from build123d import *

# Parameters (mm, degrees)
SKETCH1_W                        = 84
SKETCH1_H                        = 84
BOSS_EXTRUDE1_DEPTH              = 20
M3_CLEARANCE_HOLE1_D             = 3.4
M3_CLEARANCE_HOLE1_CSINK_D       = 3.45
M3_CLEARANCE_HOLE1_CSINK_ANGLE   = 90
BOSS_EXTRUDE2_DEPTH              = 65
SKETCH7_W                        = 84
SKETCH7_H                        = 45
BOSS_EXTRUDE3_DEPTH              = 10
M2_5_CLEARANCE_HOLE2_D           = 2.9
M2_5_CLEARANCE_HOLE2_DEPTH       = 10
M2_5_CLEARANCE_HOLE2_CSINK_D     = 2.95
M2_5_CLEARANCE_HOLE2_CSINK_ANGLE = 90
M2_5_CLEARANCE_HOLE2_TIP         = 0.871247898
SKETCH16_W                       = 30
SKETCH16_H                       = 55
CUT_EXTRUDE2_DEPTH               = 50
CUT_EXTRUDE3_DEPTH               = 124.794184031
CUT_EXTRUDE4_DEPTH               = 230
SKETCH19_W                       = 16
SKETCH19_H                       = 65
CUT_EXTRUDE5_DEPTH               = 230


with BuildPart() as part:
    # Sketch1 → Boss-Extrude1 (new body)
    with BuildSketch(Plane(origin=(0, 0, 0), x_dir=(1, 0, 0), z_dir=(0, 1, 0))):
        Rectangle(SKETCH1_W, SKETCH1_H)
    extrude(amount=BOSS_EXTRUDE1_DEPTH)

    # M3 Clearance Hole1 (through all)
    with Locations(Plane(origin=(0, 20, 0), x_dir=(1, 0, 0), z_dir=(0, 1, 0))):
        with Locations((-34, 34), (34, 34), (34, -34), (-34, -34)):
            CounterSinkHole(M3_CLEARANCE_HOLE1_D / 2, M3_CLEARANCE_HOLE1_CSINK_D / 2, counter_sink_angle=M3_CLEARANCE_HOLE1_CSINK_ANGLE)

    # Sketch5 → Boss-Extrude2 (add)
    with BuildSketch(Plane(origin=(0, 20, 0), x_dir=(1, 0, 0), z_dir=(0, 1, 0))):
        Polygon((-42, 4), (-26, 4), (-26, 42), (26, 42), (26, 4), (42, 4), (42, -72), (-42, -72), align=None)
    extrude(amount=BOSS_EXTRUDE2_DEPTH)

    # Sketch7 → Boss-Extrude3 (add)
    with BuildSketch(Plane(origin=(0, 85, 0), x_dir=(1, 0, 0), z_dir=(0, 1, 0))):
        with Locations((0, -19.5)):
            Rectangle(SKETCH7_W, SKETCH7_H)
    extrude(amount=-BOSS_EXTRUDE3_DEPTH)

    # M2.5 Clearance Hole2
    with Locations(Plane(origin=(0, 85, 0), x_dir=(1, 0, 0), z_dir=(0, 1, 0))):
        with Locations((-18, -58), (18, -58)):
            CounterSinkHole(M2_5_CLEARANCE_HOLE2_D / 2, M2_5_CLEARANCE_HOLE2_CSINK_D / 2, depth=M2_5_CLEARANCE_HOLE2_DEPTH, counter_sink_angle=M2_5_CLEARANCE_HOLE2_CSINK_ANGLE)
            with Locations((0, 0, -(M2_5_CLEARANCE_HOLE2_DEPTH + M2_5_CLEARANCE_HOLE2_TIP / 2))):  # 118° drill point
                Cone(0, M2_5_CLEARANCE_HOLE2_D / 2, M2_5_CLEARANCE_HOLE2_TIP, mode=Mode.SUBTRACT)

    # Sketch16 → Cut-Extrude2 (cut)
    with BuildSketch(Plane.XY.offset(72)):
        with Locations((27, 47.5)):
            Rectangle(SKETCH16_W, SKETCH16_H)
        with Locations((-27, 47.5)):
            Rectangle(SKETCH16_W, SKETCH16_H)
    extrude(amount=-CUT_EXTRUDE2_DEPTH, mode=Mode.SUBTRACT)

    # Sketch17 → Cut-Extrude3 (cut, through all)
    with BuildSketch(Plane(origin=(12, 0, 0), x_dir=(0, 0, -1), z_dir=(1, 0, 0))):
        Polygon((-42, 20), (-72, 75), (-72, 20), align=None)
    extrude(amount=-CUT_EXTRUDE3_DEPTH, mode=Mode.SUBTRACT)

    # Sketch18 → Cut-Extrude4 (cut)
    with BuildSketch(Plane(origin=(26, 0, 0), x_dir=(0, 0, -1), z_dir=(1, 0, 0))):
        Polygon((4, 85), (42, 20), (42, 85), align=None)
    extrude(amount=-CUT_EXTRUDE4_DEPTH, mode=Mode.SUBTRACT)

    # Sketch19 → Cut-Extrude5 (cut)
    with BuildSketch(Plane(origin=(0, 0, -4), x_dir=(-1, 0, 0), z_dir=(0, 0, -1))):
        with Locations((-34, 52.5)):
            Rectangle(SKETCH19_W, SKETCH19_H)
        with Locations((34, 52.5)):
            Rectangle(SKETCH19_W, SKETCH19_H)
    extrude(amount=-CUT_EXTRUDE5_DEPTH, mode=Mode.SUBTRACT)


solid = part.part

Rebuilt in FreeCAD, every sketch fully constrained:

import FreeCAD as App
import Part
import Sketcher

V = App.Vector


def add_polygon(sketch, points):
    """Adds a closed chain of lines whose ends are joined by coincident constraints."""
    first, n = sketch.GeometryCount, len(points)
    for a, b in zip(points, points[1:] + points[:1]):
        sketch.addGeometry(Part.LineSegment(App.Vector(*a, 0), App.Vector(*b, 0)), False)
    for i in range(n):
        sketch.addConstraint(Sketcher.Constraint("Coincident", first + i, 2, first + (i + 1) % n, 1))

doc = App.newDocument("Part")
body = doc.addObject("PartDesign::Body", "Body")

# Sketch on XZ plane
sketch1 = body.newObject("Sketcher::SketchObject", "Sketch")
sketch1.AttachmentSupport = (doc.getObject("XZ_Plane"), [""])
sketch1.MapMode = "FlatFace"
add_polygon(sketch1, [(-42, -42), (-42, 42), (42, 42), (42, -42)])  # lines 0-3
sketch1.addConstraint([
    Sketcher.Constraint("Vertical", 0),
    Sketcher.Constraint("Horizontal", 1),
    Sketcher.Constraint("Vertical", 2),
    Sketcher.Constraint("Horizontal", 3),
    Sketcher.Constraint("Symmetric", 0, 2, 2, 2, -1, 1),
    Sketcher.Constraint("Equal", 3, 0),
    Sketcher.Constraint("DistanceX", 1, 1, 1, 2, 84.0),
])
pad1 = body.newObject("PartDesign::Pad", "Pad")
pad1.Profile = sketch1
pad1.Length = 20
pad1.Reversed = True

# Sketch on XZ plane
sketch2 = body.newObject("Sketcher::SketchObject", "Sketch001")
sketch2.AttachmentSupport = (doc.getObject("XZ_Plane"), [""])
sketch2.MapMode = "FlatFace"
sketch2.AttachmentOffset = App.Placement(V(0, 0, -20), App.Rotation())
sketch2.addGeometry([
    Part.Circle(V(-34, -34, 0), V(0, 0, 1), 1.7),
    Part.Circle(V(34, -34, 0), V(0, 0, 1), 1.7),
    Part.Circle(V(34, 34, 0), V(0, 0, 1), 1.7),
    Part.Circle(V(-34, 34, 0), V(0, 0, 1), 1.7),
], False)
sketch2.addConstraint([
    Sketcher.Constraint("Equal", 0, 1),
    Sketcher.Constraint("Equal", 1, 2),
    Sketcher.Constraint("Equal", 2, 3),
    Sketcher.Constraint("Symmetric", 0, 3, 2, 3, -1, 1),
    Sketcher.Constraint("Symmetric", 1, 3, 3, 3, -1, 1),
    Sketcher.Constraint("Symmetric", 0, 3, 1, 3, -2),
    Sketcher.Constraint("Diameter", 0, 3.4),
    Sketcher.Constraint("DistanceX", 0, 3, -1, 1, 34.0),
    Sketcher.Constraint("DistanceY", 0, 3, -1, 1, 34.0),
])
doc.recompute()
hole = body.newObject("PartDesign::Hole", "Hole")
hole.Profile = sketch2
hole.ThreadType = "None"
hole.Diameter = 3.4
hole.DepthType = "ThroughAll"
hole.HoleCutType = "Countersink"
hole.HoleCutDiameter = 3.45
hole.HoleCutCountersinkAngle = 90
hole.Reversed = True

# Sketch on XZ plane
sketch3 = body.newObject("Sketcher::SketchObject", "Sketch002")
sketch3.AttachmentSupport = (doc.getObject("XZ_Plane"), [""])
sketch3.MapMode = "FlatFace"
sketch3.AttachmentOffset = App.Placement(V(0, 0, -20), App.Rotation())
add_polygon(sketch3, [(-26, -4), (-42, -4), (-42, 72), (42, 72), (42, -4), (26, -4), (26, -42), (-26, -42)])  # lines 0-7
sketch3.addConstraint([
    Sketcher.Constraint("Horizontal", 0),
    Sketcher.Constraint("Vertical", 1),
    Sketcher.Constraint("Horizontal", 2),
    Sketcher.Constraint("Vertical", 3),
    Sketcher.Constraint("Horizontal", 4),
    Sketcher.Constraint("Vertical", 5),
    Sketcher.Constraint("Horizontal", 6),
    Sketcher.Constraint("Vertical", 7),
    Sketcher.Constraint("Symmetric", 0, 2, 3, 2, -2),
    Sketcher.Constraint("Equal", 0, 4),
    Sketcher.Constraint("DistanceX", 0, 2, 0, 1, 16.0),
    Sketcher.Constraint("DistanceX", 2, 1, 2, 2, 84.0),
    Sketcher.Constraint("DistanceY", 1, 1, 1, 2, 76.0),
    Sketcher.Constraint("DistanceY", 5, 2, 5, 1, 38.0),
    Sketcher.Constraint("DistanceY", 0, 2, -1, 1, 4.0),
])
pad2 = body.newObject("PartDesign::Pad", "Pad001")
pad2.Profile = sketch3
pad2.Length = 65
pad2.Reversed = True

# Sketch on XZ plane
sketch4 = body.newObject("Sketcher::SketchObject", "Sketch003")
sketch4.AttachmentSupport = (doc.getObject("XZ_Plane"), [""])
sketch4.MapMode = "FlatFace"
sketch4.AttachmentOffset = App.Placement(V(0, 0, -85), App.Rotation())
add_polygon(sketch4, [(-42, -3), (-42, 42), (42, 42), (42, -3)])  # lines 0-3
sketch4.addConstraint([
    Sketcher.Constraint("Vertical", 0),
    Sketcher.Constraint("Horizontal", 1),
    Sketcher.Constraint("Vertical", 2),
    Sketcher.Constraint("Horizontal", 3),
    Sketcher.Constraint("DistanceX", 1, 1, 1, 2, 84.0),
    Sketcher.Constraint("DistanceY", 0, 1, 0, 2, 45.0),
    Sketcher.Constraint("DistanceX", 0, 2, -1, 1, 42.0),
    Sketcher.Constraint("DistanceY", -1, 1, 0, 2, 42.0),
])
pad3 = body.newObject("PartDesign::Pad", "Pad002")
pad3.Profile = sketch4
pad3.Length = 10

# Sketch on XZ plane
sketch5 = body.newObject("Sketcher::SketchObject", "Sketch004")
sketch5.AttachmentSupport = (doc.getObject("XZ_Plane"), [""])
sketch5.MapMode = "FlatFace"
sketch5.AttachmentOffset = App.Placement(V(0, 0, -85), App.Rotation())
sketch5.addGeometry([
    Part.Circle(V(-18, 58, 0), V(0, 0, 1), 1.4),
    Part.Circle(V(18, 58, 0), V(0, 0, 1), 1.4),
], False)
sketch5.addConstraint([
    Sketcher.Constraint("Equal", 0, 1),
    Sketcher.Constraint("Symmetric", 0, 3, 1, 3, -2),
    Sketcher.Constraint("Diameter", 0, 2.9),
    Sketcher.Constraint("DistanceX", 0, 3, -1, 1, 18.0),
    Sketcher.Constraint("DistanceY", -1, 1, 0, 3, 58.0),
])
doc.recompute()
hole2 = body.newObject("PartDesign::Hole", "Hole001")
hole2.Profile = sketch5
hole2.ThreadType = "None"
hole2.Diameter = 2.9
hole2.DepthType = "Dimension"
hole2.Depth = 10
hole2.DrillPoint = "Angled"
hole2.DrillPointAngle = 118
hole2.HoleCutType = "Countersink"
hole2.HoleCutDiameter = 2.95
hole2.HoleCutCountersinkAngle = 90
hole2.Reversed = True

# Sketch on XY plane
sketch6 = body.newObject("Sketcher::SketchObject", "Sketch005")
sketch6.AttachmentSupport = (doc.getObject("XY_Plane"), [""])
sketch6.MapMode = "FlatFace"
sketch6.AttachmentOffset = App.Placement(V(0, 0, 72), App.Rotation())
add_polygon(sketch6, [(12, 75), (12, 20), (42, 20), (42, 75)])  # lines 0-3
add_polygon(sketch6, [(-42, 75), (-42, 20), (-12, 20), (-12, 75)])  # lines 4-7
sketch6.addConstraint([
    Sketcher.Constraint("Vertical", 0),
    Sketcher.Constraint("Horizontal", 1),
    Sketcher.Constraint("Vertical", 2),
    Sketcher.Constraint("Horizontal", 3),
    Sketcher.Constraint("Vertical", 4),
    Sketcher.Constraint("Horizontal", 5),
    Sketcher.Constraint("Vertical", 6),
    Sketcher.Constraint("Horizontal", 7),
    Sketcher.Constraint("Symmetric", 1, 2, 4, 2, -2),
    Sketcher.Constraint("Symmetric", 3, 2, 6, 2, -2),
    Sketcher.Constraint("DistanceX", 1, 1, 1, 2, 30.0),
    Sketcher.Constraint("DistanceY", 0, 2, 0, 1, 55.0),
    Sketcher.Constraint("DistanceX", -1, 1, 0, 2, 12.0),
    Sketcher.Constraint("DistanceY", -1, 1, 0, 2, 20.0),
])
pocket1 = body.newObject("PartDesign::Pocket", "Pocket")
pocket1.Profile = sketch6
pocket1.Length = 50

# Sketch on YZ plane
sketch7 = body.newObject("Sketcher::SketchObject", "Sketch006")
sketch7.AttachmentSupport = (doc.getObject("YZ_Plane"), [""])
sketch7.MapMode = "FlatFace"
sketch7.AttachmentOffset = App.Placement(V(0, 0, 12), App.Rotation())
add_polygon(sketch7, [(20, 42), (75, 72), (20, 72)])  # lines 0-2
sketch7.addConstraint([
    Sketcher.Constraint("Horizontal", 1),
    Sketcher.Constraint("Vertical", 2),
    Sketcher.Constraint("DistanceX", 1, 2, 1, 1, 55.0),
    Sketcher.Constraint("DistanceY", 2, 2, 2, 1, 30.0),
    Sketcher.Constraint("DistanceX", -1, 1, 0, 2, 75.0),
    Sketcher.Constraint("DistanceY", -1, 1, 0, 2, 72.0),
])
pocket2 = body.newObject("PartDesign::Pocket", "Pocket001")
pocket2.Profile = sketch7
pocket2.Type = "ThroughAll"

# Sketch on YZ plane
sketch8 = body.newObject("Sketcher::SketchObject", "Sketch007")
sketch8.AttachmentSupport = (doc.getObject("YZ_Plane"), [""])
sketch8.MapMode = "FlatFace"
sketch8.AttachmentOffset = App.Placement(V(0, 0, 26), App.Rotation())
add_polygon(sketch8, [(85, -4), (20, -42), (85, -42)])  # lines 0-2
sketch8.addConstraint([
    Sketcher.Constraint("Horizontal", 1),
    Sketcher.Constraint("Vertical", 2),
    Sketcher.Constraint("DistanceX", 1, 1, 1, 2, 65.0),
    Sketcher.Constraint("DistanceY", 2, 1, 2, 2, 38.0),
    Sketcher.Constraint("DistanceX", -1, 1, 0, 2, 20.0),
    Sketcher.Constraint("DistanceY", 0, 2, -1, 1, 42.0),
])
pocket3 = body.newObject("PartDesign::Pocket", "Pocket002")
pocket3.Profile = sketch8
pocket3.Length = 230

# Sketch on XY plane
sketch9 = body.newObject("Sketcher::SketchObject", "Sketch008")
sketch9.AttachmentSupport = (doc.getObject("XY_Plane"), [""])
sketch9.MapMode = "FlatFace"
sketch9.AttachmentOffset = App.Placement(V(0, 0, -4), App.Rotation())
add_polygon(sketch9, [(42, 85), (42, 20), (26, 20), (26, 85)])  # lines 0-3
add_polygon(sketch9, [(-26, 85), (-26, 20), (-42, 20), (-42, 85)])  # lines 4-7
sketch9.addConstraint([
    Sketcher.Constraint("Vertical", 0),
    Sketcher.Constraint("Horizontal", 1),
    Sketcher.Constraint("Vertical", 2),
    Sketcher.Constraint("Horizontal", 3),
    Sketcher.Constraint("Vertical", 4),
    Sketcher.Constraint("Horizontal", 5),
    Sketcher.Constraint("Vertical", 6),
    Sketcher.Constraint("Horizontal", 7),
    Sketcher.Constraint("Symmetric", 1, 2, 4, 2, -2),
    Sketcher.Constraint("Symmetric", 3, 2, 6, 2, -2),
    Sketcher.Constraint("DistanceX", 1, 2, 1, 1, 16.0),
    Sketcher.Constraint("DistanceY", 0, 2, 0, 1, 65.0),
    Sketcher.Constraint("DistanceX", -1, 1, 0, 2, 42.0),
    Sketcher.Constraint("DistanceY", -1, 1, 0, 2, 20.0),
])
pocket4 = body.newObject("PartDesign::Pocket", "Pocket003")
pocket4.Profile = sketch9
pocket4.Length = 230
pocket4.Reversed = True

doc.recompute()
